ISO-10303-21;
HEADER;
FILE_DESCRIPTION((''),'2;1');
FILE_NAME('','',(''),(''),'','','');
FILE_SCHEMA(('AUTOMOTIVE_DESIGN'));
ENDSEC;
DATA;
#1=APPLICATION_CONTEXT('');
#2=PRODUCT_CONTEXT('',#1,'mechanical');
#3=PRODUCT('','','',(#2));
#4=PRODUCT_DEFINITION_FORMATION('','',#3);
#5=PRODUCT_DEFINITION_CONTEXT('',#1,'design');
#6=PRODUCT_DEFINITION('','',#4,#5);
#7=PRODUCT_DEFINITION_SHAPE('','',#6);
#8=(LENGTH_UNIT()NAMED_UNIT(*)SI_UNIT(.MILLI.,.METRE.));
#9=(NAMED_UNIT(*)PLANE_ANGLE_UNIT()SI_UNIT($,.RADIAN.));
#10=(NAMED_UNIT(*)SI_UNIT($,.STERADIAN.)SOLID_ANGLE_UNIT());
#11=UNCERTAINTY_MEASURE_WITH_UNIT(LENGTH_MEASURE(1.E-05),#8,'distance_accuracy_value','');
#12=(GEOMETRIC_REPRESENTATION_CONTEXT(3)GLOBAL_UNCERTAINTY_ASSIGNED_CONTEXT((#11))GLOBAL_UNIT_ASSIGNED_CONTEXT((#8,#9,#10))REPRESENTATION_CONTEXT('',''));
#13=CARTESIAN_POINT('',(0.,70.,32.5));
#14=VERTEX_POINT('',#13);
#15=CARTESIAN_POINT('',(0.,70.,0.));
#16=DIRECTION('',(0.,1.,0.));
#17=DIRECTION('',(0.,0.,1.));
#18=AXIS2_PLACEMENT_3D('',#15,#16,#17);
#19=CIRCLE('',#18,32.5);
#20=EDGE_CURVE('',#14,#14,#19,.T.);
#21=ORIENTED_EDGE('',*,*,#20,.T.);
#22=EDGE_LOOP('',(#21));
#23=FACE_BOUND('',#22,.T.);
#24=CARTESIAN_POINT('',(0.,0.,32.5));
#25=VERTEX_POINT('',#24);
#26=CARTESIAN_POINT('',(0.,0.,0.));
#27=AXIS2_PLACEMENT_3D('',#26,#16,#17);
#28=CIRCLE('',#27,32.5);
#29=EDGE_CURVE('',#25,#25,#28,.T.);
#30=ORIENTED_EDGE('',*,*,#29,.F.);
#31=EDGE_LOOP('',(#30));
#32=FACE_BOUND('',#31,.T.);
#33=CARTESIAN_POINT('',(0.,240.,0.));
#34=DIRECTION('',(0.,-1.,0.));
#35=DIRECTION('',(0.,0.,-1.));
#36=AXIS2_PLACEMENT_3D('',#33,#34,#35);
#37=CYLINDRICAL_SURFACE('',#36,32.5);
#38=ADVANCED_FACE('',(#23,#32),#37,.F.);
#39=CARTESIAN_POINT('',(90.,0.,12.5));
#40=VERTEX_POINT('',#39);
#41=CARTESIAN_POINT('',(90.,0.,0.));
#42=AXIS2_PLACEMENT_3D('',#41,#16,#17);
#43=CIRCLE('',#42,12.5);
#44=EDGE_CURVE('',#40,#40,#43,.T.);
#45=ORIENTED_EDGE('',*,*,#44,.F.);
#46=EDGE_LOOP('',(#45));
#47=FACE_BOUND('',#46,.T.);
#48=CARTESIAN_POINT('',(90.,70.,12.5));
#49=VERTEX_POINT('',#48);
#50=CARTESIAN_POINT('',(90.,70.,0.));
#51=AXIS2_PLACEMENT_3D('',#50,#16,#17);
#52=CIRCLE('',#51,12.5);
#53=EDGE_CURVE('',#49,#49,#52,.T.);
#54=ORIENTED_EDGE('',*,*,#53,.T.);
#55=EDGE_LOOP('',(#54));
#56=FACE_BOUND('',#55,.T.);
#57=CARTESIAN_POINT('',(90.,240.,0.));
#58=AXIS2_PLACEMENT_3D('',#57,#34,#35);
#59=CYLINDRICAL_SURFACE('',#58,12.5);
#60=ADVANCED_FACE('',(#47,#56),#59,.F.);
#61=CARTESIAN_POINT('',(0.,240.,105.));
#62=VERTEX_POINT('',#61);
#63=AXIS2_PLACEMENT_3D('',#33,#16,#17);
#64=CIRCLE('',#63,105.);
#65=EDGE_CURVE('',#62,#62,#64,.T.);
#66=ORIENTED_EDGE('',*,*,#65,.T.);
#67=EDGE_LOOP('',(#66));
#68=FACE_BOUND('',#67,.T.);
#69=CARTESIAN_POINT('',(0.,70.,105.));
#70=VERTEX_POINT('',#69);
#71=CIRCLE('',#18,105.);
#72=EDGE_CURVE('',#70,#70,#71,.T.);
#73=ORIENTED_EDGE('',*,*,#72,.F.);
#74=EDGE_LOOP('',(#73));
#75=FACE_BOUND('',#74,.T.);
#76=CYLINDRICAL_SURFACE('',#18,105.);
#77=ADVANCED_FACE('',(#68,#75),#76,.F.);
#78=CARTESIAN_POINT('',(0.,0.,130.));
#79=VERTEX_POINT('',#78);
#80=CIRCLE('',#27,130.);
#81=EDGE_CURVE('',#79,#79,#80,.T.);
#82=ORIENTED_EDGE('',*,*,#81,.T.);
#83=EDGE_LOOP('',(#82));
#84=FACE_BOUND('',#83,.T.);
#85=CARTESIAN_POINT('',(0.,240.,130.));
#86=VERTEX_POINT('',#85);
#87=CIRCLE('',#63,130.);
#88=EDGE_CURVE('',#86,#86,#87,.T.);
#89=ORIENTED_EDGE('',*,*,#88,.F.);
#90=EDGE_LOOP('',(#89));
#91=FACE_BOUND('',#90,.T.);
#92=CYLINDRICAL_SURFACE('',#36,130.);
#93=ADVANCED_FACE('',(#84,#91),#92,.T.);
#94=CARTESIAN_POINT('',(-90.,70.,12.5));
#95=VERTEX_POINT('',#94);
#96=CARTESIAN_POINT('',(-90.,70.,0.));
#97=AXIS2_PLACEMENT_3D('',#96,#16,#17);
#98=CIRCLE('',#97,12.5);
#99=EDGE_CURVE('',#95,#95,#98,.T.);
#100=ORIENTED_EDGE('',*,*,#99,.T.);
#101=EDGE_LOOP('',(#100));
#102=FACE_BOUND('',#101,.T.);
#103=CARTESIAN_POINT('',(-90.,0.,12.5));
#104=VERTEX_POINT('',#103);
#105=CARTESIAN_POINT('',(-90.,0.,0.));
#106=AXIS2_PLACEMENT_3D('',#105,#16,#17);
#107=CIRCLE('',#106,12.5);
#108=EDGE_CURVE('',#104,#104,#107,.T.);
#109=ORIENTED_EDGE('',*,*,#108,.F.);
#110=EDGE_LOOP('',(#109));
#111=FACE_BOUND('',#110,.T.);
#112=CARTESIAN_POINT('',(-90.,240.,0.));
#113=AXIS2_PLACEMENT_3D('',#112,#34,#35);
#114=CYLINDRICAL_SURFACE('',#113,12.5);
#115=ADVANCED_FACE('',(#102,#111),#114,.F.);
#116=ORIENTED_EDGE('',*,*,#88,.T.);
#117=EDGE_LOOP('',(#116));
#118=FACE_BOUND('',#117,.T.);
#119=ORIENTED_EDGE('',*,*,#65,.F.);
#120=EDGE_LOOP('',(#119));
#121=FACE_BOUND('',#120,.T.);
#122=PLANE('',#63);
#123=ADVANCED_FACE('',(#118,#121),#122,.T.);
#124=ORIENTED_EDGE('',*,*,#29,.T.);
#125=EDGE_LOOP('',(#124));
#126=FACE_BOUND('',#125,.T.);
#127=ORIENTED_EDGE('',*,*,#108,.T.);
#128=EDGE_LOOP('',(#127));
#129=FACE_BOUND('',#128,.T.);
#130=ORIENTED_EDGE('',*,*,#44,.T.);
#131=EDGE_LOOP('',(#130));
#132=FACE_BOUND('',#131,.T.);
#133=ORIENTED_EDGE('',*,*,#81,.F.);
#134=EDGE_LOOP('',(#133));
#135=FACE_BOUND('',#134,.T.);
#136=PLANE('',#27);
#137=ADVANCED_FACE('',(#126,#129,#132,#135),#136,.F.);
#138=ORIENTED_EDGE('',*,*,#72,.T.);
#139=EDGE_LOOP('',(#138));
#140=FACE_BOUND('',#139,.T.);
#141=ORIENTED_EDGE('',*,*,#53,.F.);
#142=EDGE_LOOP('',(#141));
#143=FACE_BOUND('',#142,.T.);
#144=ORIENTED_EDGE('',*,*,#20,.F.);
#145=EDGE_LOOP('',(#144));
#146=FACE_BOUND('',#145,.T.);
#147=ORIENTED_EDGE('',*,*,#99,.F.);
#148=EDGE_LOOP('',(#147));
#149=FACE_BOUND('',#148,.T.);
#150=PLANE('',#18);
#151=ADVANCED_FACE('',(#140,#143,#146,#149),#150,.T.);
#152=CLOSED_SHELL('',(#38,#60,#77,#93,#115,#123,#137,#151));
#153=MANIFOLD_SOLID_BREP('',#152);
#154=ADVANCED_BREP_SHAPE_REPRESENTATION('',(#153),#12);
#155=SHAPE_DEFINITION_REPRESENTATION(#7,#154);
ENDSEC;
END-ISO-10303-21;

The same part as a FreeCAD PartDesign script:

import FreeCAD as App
import Part
import Sketcher
from FreeCAD import Vector

doc = App.newDocument("Part")
params = doc.addObject("Spreadsheet::Sheet", "Params")
for row, (alias, value) in enumerate([
    ("sketch1_diameter", "260 mm"),
    ("pad1_length", "240 mm"),
    ("sketch2_diameter", "210 mm"),
    ("pocket1_length", "170 mm"),
    ("sketch3_diameter", "25 mm"),
    ("sketch3_diameter2", "65 mm"),
], start=1):
    params.set(f"A{row}", alias)
    params.set(f"B{row}", "=" + value)
    params.setAlias(f"B{row}", alias)

body = doc.addObject("PartDesign::Body", "Body")

sketch1 = body.newObject("Sketcher::SketchObject", "Sketch")
sketch1.AttachmentSupport = (doc.getObject("XZ_Plane"), [""])
sketch1.MapMode = "FlatFace"
sketch1.addGeometry(Part.Circle(Vector(0, 0, 0), Vector(0, 0, 1), 130), False)
sketch1.addConstraint(Sketcher.Constraint("Coincident", 0, 3, -1, 1))
sketch1.addConstraint(Sketcher.Constraint("Diameter", 0, 260.0))
sketch1.setExpression("Constraints[1]", "Params.sketch1_diameter")
pad1 = body.newObject("PartDesign::Pad", "Pad")
pad1.Profile = sketch1
pad1.setExpression("Length", "Params.pad1_length")
pad1.Reversed = True

sketch2 = body.newObject("Sketcher::SketchObject", "Sketch001")
sketch2.AttachmentSupport = (doc.getObject("XZ_Plane"), [""])
sketch2.MapMode = "FlatFace"
sketch2.AttachmentOffset = App.Placement(Vector(0, 0, -240), App.Rotation())
sketch2.addGeometry(Part.Circle(Vector(0, 0, 0), Vector(0, 0, 1), 105), False)
sketch2.addConstraint(Sketcher.Constraint("Coincident", 0, 3, -1, 1))
sketch2.addConstraint(Sketcher.Constraint("Diameter", 0, 210.0))
sketch2.setExpression("Constraints[1]", "Params.sketch2_diameter")
pocket1 = body.newObject("PartDesign::Pocket", "Pocket")
pocket1.Profile = sketch2
pocket1.setExpression("Length", "Params.pocket1_length")
pocket1.Reversed = True

sketch3 = body.newObject("Sketcher::SketchObject", "Sketch002")
sketch3.AttachmentSupport = (doc.getObject("XZ_Plane"), [""])
sketch3.MapMode = "FlatFace"
sketch3.addGeometry(Part.Circle(Vector(-90, 0, 0), Vector(0, 0, 1), 12), False)
sketch3.addGeometry(Part.Circle(Vector(90, 0, 0), Vector(0, 0, 1), 12), False)
sketch3.addGeometry(Part.Circle(Vector(0, 0, 0), Vector(0, 0, 1), 32), False)
sketch3.addConstraint(Sketcher.Constraint("Coincident", 2, 3, -1, 1))
sketch3.addConstraint(Sketcher.Constraint("Equal", 0, 1))
sketch3.addConstraint(Sketcher.Constraint("Symmetric", 0, 3, 1, 3, -1, 1))
sketch3.addConstraint(Sketcher.Constraint("PointOnObject", 0, 3, -1))
sketch3.addConstraint(Sketcher.Constraint("Diameter", 0, 25.0))
sketch3.addConstraint(Sketcher.Constraint("Diameter", 2, 65.0))
sketch3.addConstraint(Sketcher.Constraint("DistanceX", 0, 3, -1, 1, 90.0))
sketch3.setExpression("Constraints[4]", "Params.sketch3_diameter")
sketch3.setExpression("Constraints[5]", "Params.sketch3_diameter2")
pocket2 = body.newObject("PartDesign::Pocket", "Pocket001")
pocket2.Profile = sketch3
pocket2.Type = "ThroughAll"
pocket2.Midplane = True

doc.recompute()
